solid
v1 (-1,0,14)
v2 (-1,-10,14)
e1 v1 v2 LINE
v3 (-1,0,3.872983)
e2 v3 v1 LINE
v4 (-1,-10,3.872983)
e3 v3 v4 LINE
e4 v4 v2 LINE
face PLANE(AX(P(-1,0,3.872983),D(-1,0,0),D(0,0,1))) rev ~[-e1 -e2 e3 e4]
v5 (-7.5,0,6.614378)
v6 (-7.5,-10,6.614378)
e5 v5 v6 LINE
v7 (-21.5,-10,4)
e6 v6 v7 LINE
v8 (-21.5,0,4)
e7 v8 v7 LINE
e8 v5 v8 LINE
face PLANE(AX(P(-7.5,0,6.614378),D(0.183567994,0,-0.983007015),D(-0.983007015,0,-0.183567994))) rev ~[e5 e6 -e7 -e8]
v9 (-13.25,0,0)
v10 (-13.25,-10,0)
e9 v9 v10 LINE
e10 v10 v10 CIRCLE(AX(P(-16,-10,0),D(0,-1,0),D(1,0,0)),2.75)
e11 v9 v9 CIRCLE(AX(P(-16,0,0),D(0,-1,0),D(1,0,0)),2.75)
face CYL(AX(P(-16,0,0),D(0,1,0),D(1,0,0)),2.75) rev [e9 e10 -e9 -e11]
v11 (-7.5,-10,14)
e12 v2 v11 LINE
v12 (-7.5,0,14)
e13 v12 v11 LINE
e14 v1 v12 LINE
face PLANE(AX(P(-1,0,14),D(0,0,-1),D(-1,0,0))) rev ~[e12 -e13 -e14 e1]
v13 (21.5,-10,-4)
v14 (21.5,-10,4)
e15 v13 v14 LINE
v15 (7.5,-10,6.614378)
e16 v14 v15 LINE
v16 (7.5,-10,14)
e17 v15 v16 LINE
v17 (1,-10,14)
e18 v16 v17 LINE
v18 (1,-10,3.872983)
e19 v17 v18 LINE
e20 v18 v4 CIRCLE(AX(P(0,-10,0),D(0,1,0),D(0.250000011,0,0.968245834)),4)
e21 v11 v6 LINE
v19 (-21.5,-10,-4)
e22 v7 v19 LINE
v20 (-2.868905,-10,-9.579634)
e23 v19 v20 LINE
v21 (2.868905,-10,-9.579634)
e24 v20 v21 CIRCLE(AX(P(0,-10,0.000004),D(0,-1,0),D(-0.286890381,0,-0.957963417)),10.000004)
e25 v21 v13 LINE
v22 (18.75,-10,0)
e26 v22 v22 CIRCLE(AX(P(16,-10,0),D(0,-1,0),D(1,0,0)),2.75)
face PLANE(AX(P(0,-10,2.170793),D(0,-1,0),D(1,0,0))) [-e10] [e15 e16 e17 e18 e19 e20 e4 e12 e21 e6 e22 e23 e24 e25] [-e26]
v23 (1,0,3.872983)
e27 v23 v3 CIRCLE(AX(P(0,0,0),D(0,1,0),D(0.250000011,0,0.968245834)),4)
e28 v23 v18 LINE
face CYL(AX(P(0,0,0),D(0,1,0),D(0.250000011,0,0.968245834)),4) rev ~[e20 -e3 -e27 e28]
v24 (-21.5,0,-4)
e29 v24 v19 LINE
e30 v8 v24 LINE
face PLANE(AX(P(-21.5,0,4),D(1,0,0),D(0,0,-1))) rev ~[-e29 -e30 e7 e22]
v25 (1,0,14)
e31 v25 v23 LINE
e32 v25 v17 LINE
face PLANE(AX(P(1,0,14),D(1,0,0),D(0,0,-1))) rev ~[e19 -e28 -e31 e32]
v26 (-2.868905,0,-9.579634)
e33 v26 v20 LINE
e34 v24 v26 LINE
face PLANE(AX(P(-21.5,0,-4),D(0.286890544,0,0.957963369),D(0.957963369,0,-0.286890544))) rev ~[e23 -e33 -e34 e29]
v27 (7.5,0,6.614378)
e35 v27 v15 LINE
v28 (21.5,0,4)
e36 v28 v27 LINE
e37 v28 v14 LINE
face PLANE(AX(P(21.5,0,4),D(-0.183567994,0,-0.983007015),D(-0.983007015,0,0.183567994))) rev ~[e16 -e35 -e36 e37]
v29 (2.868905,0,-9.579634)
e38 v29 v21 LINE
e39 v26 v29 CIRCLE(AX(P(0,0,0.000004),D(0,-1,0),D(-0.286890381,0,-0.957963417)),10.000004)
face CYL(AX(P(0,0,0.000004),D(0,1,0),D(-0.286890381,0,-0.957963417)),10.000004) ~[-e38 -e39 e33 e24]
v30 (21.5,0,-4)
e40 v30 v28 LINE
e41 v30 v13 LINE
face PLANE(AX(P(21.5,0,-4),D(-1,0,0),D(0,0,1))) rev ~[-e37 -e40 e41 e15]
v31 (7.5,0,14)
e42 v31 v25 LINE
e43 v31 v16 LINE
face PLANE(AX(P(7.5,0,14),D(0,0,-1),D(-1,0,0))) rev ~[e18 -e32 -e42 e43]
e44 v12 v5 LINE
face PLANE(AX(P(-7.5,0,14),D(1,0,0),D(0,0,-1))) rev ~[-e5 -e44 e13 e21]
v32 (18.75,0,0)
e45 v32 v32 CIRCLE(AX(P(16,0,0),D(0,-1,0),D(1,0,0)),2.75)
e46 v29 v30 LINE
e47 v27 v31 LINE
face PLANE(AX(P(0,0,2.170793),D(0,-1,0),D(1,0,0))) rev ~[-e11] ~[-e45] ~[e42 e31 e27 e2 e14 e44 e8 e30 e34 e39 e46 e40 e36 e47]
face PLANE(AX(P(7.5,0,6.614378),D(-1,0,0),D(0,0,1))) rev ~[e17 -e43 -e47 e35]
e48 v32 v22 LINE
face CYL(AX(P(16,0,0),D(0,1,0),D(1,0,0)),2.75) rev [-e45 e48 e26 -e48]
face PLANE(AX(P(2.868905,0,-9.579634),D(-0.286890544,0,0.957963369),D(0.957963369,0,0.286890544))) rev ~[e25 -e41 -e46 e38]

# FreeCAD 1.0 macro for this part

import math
import FreeCAD as App
import Part
import Sketcher
from FreeCAD import Vector

doc = App.newDocument("Part")
body = doc.addObject("PartDesign::Body", "Body")

# Sketch on XZ plane
sketch1 = body.newObject("Sketcher::SketchObject", "Sketch")
sketch1.AttachmentSupport = (doc.getObject("XZ_Plane"), [""])
sketch1.MapMode = "FlatFace"
sketch1.addGeometry(Part.LineSegment(Vector(-21.5, -4, 0), Vector(-2.9, -9.6, 0)), False)
sketch1.addGeometry(Part.ArcOfCircle(Part.Circle(Vector(0, 0, 0), Vector(0, 0, 1), 10), math.radians(-107), math.radians(-73)), False)
sketch1.addGeometry(Part.LineSegment(Vector(2.9, -9.6, 0), Vector(21.5, -4, 0)), False)
sketch1.addGeometry(Part.LineSegment(Vector(21.5, -4, 0), Vector(21.5, 4, 0)), False)
sketch1.addGeometry(Part.LineSegment(Vector(21.5, 4, 0), Vector(7.5, 6.6, 0)), False)
sketch1.addGeometry(Part.LineSegment(Vector(7.5, 6.6, 0), Vector(7.5, 14, 0)), False)
sketch1.addGeometry(Part.LineSegment(Vector(7.5, 14, 0), Vector(1, 14, 0)), False)
sketch1.addGeometry(Part.LineSegment(Vector(1, 14, 0), Vector(1, 3.9, 0)), False)
sketch1.addGeometry(Part.ArcOfCircle(Part.Circle(Vector(0, 0, 0), Vector(0, 0, 1), 4), math.radians(104), math.radians(436)), False)
sketch1.addGeometry(Part.LineSegment(Vector(-1, 3.9, 0), Vector(-1, 14, 0)), False)
sketch1.addGeometry(Part.LineSegment(Vector(-1, 14, 0), Vector(-7.5, 14, 0)), False)
sketch1.addGeometry(Part.LineSegment(Vector(-7.5, 14, 0), Vector(-7.5, 6.6, 0)), False)
sketch1.addGeometry(Part.LineSegment(Vector(-7.5, 6.6, 0), Vector(-21.5, 4, 0)), False)
sketch1.addGeometry(Part.LineSegment(Vector(-21.5, 4, 0), Vector(-21.5, -4, 0)), False)
sketch1.addGeometry(Part.Circle(Vector(-16, 0, 0), Vector(0, 0, 1), 2.8), False)
sketch1.addGeometry(Part.Circle(Vector(16, 0, 0), Vector(0, 0, 1), 2.8), False)
sketch1.addConstraint(Sketcher.Constraint("Tangent", 0, 2, 1, 1))
sketch1.addConstraint(Sketcher.Constraint("Tangent", 1, 2, 2, 1))
sketch1.addConstraint(Sketcher.Constraint("Coincident", 2, 2, 3, 1))
sketch1.addConstraint(Sketcher.Constraint("Coincident", 3, 2, 4, 1))
sketch1.addConstraint(Sketcher.Constraint("Coincident", 4, 2, 5, 1))
sketch1.addConstraint(Sketcher.Constraint("Coincident", 5, 2, 6, 1))
sketch1.addConstraint(Sketcher.Constraint("Coincident", 6, 2, 7, 1))
sketch1.addConstraint(Sketcher.Constraint("Coincident", 7, 2, 8, 2))
sketch1.addConstraint(Sketcher.Constraint("Coincident", 8, 1, 9, 1))
sketch1.addConstraint(Sketcher.Constraint("Coincident", 9, 2, 10, 1))
sketch1.addConstraint(Sketcher.Constraint("Coincident", 10, 2, 11, 1))
sketch1.addConstraint(Sketcher.Constraint("Coincident", 11, 2, 12, 1))
sketch1.addConstraint(Sketcher.Constraint("Coincident", 12, 2, 13, 1))
sketch1.addConstraint(Sketcher.Constraint("Coincident", 13, 2, 0, 1))
sketch1.addConstraint(Sketcher.Constraint("Vertical", 3))
sketch1.addConstraint(Sketcher.Constraint("Vertical", 5))
sketch1.addConstraint(Sketcher.Constraint("Horizontal", 6))
sketch1.addConstraint(Sketcher.Constraint("Vertical", 7))
sketch1.addConstraint(Sketcher.Constraint("Vertical", 9))
sketch1.addConstraint(Sketcher.Constraint("Horizontal", 10))
sketch1.addConstraint(Sketcher.Constraint("Vertical", 11))
sketch1.addConstraint(Sketcher.Constraint("Vertical", 13))
sketch1.addConstraint(Sketcher.Constraint("Coincident", 1, 3, -1, 1))
sketch1.addConstraint(Sketcher.Constraint("Coincident", 8, 3, -1, 1))
sketch1.addConstraint(Sketcher.Constraint("Equal", 14, 15))
sketch1.addConstraint(Sketcher.Constraint("Symmetric", 14, 3, 15, 3, -1, 1))
sketch1.addConstraint(Sketcher.Constraint("Symmetric", 2, 2, 12, 2, -1, 1))
sketch1.addConstraint(Sketcher.Constraint("Symmetric", 6, 2, 9, 2, -2))
sketch1.addConstraint(Sketcher.Constraint("Symmetric", 4, 2, 11, 2, -2))
sketch1.addConstraint(Sketcher.Constraint("PointOnObject", 14, 3, -1))
sketch1.addConstraint(Sketcher.Constraint("Horizontal", 0, 2, 1, 2))
sketch1.addConstraint(Sketcher.Constraint("Horizontal", 3, 2, 12, 2))
sketch1.addConstraint(Sketcher.Constraint("Radius", 8, 4.0))
sketch1.addConstraint(Sketcher.Constraint("Diameter", 14, 5.5))
sketch1.addConstraint(Sketcher.Constraint("DistanceY", 3, 1, 3, 2, 8.0))
sketch1.addConstraint(Sketcher.Constraint("DistanceX", 6, 2, 6, 1, 6.5))
sketch1.addConstraint(Sketcher.Constraint("DistanceX", 14, 3, -1, 1, 16.0))
sketch1.addConstraint(Sketcher.Constraint("DistanceY", -1, 1, 5, 2, 14.0))
sketch1.addConstraint(Sketcher.Constraint("DistanceX", -1, 1, 6, 2, 1.0))
sketch1.addConstraint(Sketcher.Constraint("DistanceX", 4, 2, 3, 2, 14.0))
sketch1.addConstraint(Sketcher.Constraint("Radius", 1, 10.000004))
sketch1.addConstraint(Sketcher.Constraint("DistanceY", 5, 1, 5, 2, 7.385622))
pad1 = body.newObject("PartDesign::Pad", "Pad")
pad1.Profile = sketch1
pad1.Length = 10

doc.recompute()
